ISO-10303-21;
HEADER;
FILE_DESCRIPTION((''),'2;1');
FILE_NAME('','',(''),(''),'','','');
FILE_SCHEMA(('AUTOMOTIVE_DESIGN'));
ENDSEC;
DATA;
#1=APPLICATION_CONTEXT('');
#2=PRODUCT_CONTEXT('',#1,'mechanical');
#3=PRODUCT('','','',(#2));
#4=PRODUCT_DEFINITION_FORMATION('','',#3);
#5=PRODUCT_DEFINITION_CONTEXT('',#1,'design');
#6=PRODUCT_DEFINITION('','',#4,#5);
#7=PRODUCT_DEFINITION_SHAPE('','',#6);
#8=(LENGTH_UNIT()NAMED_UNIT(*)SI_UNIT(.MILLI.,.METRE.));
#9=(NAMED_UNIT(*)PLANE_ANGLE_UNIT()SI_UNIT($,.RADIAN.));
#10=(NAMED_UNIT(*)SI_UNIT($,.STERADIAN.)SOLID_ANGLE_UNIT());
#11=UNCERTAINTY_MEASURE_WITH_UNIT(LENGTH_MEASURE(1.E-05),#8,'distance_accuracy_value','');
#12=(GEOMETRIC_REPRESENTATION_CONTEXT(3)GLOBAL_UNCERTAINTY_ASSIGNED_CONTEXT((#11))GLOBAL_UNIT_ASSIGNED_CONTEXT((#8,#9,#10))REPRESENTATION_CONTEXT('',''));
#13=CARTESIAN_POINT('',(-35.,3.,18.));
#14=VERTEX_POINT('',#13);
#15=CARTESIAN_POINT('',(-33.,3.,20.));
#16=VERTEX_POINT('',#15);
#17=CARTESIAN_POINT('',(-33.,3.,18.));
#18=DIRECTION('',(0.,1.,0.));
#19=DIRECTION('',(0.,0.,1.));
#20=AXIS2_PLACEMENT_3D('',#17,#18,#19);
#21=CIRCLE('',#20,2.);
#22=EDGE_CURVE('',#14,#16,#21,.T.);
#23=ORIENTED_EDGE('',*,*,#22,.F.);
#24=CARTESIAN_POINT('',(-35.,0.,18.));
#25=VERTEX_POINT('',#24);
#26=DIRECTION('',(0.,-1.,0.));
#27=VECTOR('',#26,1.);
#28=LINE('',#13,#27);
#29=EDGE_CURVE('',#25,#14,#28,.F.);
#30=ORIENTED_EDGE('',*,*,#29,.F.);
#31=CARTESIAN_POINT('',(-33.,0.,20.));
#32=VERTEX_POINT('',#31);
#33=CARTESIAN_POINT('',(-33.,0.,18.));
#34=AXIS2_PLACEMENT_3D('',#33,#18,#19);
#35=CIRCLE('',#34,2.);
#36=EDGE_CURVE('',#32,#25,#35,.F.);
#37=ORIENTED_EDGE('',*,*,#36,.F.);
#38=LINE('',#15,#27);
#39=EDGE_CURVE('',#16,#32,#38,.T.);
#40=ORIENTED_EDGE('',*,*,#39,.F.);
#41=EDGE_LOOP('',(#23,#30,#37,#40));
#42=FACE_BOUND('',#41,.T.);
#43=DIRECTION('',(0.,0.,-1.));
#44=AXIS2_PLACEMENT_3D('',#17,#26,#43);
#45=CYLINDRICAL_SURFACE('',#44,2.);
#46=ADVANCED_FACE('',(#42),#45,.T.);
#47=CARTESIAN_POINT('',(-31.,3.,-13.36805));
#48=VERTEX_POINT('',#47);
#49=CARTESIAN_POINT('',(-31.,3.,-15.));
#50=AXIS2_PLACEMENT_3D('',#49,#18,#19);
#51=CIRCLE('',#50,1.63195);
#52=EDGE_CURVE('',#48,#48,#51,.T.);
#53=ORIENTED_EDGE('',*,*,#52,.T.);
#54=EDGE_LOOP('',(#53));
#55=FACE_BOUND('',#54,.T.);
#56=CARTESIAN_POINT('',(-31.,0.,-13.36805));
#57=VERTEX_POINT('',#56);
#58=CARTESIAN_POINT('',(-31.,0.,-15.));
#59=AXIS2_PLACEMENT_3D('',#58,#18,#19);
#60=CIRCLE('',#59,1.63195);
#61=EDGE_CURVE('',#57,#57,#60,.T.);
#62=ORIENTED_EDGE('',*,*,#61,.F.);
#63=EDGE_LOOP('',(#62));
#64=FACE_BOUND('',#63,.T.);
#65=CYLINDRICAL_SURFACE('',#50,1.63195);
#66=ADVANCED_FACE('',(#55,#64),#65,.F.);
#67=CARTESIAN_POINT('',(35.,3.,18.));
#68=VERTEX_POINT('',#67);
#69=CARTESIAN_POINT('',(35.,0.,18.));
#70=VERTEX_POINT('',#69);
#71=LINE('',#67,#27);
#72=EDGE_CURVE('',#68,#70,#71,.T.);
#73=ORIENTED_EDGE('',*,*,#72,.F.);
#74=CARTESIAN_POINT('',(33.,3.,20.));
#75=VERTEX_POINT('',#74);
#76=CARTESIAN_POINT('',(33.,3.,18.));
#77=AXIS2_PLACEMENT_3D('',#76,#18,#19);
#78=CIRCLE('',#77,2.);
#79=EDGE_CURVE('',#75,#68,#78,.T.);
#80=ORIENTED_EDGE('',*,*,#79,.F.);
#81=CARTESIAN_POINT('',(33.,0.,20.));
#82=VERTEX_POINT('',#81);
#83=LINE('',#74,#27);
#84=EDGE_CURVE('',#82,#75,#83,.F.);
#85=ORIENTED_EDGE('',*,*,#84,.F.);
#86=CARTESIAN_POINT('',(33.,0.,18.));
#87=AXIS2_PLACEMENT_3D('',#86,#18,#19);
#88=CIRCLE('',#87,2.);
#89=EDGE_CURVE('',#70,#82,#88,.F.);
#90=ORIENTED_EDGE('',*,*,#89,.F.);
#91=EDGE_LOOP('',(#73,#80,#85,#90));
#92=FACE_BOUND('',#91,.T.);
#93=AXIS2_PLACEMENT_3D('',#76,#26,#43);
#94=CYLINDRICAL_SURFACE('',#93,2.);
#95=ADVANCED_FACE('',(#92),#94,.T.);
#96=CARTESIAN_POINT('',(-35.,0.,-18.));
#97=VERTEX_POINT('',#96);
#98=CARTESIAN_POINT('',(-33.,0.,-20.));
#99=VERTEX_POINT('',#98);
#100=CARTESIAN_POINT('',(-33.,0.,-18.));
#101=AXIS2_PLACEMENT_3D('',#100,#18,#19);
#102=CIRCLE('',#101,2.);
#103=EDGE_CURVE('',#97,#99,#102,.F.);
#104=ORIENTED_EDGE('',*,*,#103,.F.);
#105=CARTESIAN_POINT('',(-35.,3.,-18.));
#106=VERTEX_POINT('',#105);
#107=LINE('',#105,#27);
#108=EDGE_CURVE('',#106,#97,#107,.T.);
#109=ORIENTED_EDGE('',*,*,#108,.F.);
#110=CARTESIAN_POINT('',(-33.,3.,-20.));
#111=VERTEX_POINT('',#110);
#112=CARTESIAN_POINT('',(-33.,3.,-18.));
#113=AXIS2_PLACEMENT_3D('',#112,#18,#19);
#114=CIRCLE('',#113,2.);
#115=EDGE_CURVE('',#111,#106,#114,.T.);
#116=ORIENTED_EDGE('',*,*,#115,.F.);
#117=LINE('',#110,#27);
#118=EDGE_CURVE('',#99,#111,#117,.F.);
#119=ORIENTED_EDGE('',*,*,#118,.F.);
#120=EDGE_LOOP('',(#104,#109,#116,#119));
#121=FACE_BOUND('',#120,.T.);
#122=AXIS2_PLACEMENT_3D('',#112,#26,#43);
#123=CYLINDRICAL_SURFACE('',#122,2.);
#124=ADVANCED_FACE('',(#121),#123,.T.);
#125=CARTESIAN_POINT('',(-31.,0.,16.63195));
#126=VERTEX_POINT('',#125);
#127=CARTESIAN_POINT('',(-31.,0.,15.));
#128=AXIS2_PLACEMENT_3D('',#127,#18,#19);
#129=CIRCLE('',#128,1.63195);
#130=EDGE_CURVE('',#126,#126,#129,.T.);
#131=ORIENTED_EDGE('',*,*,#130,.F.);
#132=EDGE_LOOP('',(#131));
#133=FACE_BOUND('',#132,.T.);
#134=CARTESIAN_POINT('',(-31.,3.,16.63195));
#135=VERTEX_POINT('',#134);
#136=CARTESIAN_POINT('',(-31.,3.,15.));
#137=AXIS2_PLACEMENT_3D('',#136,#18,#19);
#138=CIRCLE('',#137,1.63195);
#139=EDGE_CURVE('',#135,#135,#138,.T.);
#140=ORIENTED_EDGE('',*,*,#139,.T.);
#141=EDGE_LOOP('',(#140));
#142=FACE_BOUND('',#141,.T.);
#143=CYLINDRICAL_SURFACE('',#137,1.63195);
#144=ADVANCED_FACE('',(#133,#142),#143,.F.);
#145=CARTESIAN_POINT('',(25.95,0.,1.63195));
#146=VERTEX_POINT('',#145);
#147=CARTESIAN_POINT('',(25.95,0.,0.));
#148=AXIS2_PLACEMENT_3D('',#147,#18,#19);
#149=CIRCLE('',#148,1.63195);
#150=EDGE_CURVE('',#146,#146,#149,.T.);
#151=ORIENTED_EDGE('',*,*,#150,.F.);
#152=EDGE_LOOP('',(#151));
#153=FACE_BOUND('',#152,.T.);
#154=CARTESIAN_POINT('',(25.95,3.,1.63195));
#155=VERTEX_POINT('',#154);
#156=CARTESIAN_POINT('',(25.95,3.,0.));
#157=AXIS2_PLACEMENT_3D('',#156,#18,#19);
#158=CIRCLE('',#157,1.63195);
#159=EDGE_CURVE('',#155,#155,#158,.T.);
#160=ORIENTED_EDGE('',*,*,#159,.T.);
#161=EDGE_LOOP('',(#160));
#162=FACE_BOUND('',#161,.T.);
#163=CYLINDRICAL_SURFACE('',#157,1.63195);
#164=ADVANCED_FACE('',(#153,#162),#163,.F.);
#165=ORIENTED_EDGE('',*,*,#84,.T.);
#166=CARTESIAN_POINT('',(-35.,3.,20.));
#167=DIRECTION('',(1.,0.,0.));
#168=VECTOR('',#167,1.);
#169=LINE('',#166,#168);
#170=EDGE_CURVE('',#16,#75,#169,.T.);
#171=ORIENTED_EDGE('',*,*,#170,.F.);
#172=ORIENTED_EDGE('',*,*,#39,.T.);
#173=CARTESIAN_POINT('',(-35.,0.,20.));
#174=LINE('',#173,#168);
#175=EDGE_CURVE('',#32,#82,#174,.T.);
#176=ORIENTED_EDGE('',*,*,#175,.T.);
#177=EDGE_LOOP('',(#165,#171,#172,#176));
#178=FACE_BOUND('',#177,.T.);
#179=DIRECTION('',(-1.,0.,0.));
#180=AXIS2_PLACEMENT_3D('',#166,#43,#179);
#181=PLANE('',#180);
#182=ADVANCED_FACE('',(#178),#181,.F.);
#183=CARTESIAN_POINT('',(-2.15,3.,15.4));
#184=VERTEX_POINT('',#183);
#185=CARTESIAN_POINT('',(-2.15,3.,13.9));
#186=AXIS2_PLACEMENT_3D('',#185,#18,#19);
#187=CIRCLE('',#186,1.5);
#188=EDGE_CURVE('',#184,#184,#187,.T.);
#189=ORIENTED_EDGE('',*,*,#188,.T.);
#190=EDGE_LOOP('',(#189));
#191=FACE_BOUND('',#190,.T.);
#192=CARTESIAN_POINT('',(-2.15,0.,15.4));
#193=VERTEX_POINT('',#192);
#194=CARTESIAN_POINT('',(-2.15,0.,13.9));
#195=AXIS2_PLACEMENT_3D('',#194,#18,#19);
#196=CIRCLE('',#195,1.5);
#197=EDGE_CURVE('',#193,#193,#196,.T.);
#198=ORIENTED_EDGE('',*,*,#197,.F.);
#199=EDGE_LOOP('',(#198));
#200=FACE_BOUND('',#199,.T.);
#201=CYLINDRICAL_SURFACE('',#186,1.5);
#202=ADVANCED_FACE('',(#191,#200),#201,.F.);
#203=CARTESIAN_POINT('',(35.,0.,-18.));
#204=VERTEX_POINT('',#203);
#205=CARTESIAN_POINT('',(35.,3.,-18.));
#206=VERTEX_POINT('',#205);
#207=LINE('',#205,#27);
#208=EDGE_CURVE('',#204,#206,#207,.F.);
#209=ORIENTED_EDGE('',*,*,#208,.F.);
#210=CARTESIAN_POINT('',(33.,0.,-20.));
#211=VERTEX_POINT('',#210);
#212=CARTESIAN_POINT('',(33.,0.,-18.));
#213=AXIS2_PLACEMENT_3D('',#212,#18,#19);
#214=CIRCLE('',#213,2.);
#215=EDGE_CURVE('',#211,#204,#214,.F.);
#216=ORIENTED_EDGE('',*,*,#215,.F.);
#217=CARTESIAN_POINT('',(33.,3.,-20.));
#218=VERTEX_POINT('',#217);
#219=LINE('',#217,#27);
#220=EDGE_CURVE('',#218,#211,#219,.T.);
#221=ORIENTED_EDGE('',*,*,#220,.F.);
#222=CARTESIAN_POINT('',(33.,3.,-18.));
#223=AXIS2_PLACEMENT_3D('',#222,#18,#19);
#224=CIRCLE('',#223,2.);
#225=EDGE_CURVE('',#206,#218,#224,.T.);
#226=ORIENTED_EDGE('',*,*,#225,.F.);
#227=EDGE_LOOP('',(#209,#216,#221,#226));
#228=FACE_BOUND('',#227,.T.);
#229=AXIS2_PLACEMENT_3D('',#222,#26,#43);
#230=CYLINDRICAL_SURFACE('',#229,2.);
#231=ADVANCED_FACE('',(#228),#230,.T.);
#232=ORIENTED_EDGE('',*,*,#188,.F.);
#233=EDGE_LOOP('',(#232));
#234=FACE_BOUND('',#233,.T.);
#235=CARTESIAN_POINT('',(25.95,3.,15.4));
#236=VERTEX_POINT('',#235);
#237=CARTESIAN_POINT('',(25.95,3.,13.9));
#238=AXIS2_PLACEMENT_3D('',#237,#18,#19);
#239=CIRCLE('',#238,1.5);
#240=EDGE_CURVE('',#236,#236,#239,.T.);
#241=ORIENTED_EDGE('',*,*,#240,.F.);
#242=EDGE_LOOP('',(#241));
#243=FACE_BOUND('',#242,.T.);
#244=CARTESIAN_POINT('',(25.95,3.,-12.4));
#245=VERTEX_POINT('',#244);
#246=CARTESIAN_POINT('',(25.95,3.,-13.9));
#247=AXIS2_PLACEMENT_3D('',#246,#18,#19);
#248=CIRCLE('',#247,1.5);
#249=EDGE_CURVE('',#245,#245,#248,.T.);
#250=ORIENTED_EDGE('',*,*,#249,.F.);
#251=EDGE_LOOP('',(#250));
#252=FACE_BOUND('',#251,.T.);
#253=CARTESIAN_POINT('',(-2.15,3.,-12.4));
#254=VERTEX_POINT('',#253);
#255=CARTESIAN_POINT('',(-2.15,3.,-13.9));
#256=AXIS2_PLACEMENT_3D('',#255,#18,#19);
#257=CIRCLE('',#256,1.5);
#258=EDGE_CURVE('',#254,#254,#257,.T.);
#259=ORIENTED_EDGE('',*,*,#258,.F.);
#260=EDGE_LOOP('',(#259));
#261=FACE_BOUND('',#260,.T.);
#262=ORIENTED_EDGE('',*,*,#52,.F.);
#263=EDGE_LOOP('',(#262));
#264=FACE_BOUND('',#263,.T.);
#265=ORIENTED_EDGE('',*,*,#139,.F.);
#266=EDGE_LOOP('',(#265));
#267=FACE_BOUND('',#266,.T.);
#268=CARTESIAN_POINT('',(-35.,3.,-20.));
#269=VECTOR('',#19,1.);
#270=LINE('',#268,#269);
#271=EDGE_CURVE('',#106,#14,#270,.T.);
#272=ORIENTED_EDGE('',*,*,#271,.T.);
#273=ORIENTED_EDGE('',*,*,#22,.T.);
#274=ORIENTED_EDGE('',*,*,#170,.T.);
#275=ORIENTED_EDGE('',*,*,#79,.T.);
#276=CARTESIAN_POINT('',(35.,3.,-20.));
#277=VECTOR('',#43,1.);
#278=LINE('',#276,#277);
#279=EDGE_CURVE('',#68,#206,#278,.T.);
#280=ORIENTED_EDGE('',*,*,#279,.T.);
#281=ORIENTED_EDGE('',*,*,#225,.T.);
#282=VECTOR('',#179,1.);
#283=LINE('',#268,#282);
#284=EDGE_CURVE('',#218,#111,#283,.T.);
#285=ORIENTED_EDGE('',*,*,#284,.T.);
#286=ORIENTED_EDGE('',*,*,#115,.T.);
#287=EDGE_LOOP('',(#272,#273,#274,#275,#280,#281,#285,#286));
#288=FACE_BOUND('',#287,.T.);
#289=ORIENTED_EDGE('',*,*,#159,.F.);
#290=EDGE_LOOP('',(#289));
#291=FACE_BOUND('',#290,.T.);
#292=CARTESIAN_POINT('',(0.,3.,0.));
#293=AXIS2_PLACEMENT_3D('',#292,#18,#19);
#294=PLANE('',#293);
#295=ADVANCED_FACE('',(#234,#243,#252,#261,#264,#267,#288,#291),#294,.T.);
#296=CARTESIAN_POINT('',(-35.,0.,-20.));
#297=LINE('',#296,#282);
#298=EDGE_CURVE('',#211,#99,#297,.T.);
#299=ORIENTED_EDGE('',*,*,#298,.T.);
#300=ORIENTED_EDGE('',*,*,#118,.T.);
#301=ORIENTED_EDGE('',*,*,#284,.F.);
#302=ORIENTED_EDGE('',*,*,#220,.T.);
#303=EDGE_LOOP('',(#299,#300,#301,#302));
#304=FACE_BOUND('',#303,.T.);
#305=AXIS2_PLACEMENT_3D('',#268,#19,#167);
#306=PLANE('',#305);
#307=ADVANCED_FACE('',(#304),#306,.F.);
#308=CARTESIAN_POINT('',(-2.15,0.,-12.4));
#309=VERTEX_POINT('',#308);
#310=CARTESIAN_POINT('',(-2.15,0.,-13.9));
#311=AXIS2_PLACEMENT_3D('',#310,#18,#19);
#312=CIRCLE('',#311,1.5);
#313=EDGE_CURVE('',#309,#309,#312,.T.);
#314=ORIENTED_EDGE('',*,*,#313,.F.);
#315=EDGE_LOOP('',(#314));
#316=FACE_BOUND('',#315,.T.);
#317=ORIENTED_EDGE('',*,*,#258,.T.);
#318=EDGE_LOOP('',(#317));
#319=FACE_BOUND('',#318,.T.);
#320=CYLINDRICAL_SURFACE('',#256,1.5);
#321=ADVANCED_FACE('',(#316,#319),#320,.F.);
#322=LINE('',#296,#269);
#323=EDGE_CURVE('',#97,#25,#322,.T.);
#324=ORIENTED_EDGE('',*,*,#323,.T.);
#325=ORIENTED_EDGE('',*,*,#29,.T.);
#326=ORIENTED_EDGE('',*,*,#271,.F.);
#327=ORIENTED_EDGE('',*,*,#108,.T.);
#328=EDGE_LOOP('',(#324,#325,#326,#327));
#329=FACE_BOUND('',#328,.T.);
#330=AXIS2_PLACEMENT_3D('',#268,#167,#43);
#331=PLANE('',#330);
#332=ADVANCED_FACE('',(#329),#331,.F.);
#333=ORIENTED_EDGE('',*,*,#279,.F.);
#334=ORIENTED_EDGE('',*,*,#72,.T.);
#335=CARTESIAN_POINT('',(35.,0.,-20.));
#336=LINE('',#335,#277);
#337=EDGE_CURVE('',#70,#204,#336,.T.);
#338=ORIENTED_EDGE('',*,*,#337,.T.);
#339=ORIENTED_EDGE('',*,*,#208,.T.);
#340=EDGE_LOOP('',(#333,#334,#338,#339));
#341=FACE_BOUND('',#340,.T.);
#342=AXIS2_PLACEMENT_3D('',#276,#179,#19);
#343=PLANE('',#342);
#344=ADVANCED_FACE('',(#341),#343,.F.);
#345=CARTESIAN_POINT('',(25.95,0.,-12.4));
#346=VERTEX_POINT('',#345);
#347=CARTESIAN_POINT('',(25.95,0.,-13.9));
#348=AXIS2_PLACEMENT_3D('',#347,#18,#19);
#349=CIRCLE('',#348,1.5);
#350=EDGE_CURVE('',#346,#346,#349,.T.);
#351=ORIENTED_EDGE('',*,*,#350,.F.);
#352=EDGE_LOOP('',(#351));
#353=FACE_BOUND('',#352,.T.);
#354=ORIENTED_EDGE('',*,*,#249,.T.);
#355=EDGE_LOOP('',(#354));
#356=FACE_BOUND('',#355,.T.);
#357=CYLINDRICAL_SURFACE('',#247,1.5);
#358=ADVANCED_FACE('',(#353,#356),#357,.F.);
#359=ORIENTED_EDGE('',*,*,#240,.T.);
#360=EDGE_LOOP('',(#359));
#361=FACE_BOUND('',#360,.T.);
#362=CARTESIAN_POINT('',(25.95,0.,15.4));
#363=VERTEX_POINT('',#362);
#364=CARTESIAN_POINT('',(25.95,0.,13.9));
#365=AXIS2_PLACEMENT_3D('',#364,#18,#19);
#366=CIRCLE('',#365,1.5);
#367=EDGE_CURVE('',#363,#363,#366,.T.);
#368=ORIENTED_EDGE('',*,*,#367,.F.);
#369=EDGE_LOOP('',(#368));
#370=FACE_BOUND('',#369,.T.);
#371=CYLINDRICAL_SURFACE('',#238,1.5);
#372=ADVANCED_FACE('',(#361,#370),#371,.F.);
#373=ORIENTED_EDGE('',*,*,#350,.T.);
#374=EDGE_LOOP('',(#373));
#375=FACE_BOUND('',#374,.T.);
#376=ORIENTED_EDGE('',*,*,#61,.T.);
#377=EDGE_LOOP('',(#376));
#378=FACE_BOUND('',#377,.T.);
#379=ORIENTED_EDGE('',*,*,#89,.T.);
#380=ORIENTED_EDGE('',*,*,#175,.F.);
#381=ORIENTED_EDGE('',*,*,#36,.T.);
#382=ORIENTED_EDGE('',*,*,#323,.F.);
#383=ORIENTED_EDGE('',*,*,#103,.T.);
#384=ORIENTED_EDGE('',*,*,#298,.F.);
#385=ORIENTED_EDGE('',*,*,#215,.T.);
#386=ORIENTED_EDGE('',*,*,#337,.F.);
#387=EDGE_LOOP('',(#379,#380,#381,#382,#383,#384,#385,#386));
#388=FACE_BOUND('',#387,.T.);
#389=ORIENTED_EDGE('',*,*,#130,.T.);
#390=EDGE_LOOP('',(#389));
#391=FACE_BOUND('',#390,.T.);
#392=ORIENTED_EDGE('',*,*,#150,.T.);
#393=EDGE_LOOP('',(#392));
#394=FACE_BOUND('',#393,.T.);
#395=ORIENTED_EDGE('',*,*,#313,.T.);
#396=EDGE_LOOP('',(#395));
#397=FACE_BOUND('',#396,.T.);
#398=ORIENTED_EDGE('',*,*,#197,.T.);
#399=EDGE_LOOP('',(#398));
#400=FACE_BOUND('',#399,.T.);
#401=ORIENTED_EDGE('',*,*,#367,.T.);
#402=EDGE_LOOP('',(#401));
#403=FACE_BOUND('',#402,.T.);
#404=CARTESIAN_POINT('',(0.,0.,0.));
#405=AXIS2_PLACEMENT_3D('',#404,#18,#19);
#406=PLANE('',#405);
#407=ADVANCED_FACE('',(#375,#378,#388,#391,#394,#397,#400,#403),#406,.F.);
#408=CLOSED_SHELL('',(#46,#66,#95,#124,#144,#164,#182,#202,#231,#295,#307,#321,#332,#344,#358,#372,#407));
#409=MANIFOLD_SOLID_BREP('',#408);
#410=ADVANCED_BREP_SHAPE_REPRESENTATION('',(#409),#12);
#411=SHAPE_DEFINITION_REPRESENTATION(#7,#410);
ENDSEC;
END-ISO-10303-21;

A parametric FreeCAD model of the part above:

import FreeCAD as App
import Part
import Sketcher

V = App.Vector


def edges_at(feature, points):
    """Names of the edges that pass closest to the given points."""
    edges = feature.Shape.Edges
    near = lambda p: min(range(len(edges)), key=lambda i: edges[i].distToShape(Part.Vertex(*p))[0])
    return sorted({f"Edge{near(p) + 1}" for p in points})


def add_polygon(sketch, points):
    """Adds a closed chain of lines whose ends are joined by coincident constraints."""
    first, n = sketch.GeometryCount, len(points)
    for a, b in zip(points, points[1:] + points[:1]):
        sketch.addGeometry(Part.LineSegment(App.Vector(*a, 0), App.Vector(*b, 0)), False)
    for i in range(n):
        sketch.addConstraint(Sketcher.Constraint("Coincident", first + i, 2, first + (i + 1) % n, 1))

doc = App.newDocument("Part")
params = doc.addObject("Spreadsheet::Sheet", "Params")
for row, (alias, value) in enumerate([
    ("sketch1_width", "70 mm"),
    ("sketch1_height", "40 mm"),
    ("pad1_length", "3 mm"),
    ("sketch2_diameter", "3 mm"),
    ("hole_diameter", "3 mm"),
    ("hole2_diameter", "3.2639 mm"),
    ("fillet_radius", "2 mm"),
], start=1):
    params.set(f"A{row}", alias)
    params.set(f"B{row}", "=" + value)
    params.setAlias(f"B{row}", alias)

body = doc.addObject("PartDesign::Body", "Body")

# Sketch on XZ plane
sketch1 = doc.addObject("Sketcher::SketchObject", "Sketch")
body.addObject(sketch1)
sketch1.AttachmentSupport = (doc.XZ_Plane, [""])
sketch1.MapMode = "FlatFace"
add_polygon(sketch1, [(-35, -20), (-35, 20), (35, 20), (35, -20)])  # lines 0-3
sketch1.addConstraint(Sketcher.Constraint("Vertical", 0))
sketch1.addConstraint(Sketcher.Constraint("Horizontal", 1))
sketch1.addConstraint(Sketcher.Constraint("Vertical", 2))
sketch1.addConstraint(Sketcher.Constraint("Horizontal", 3))
sketch1.addConstraint(Sketcher.Constraint("Symmetric", 0, 2, 2, 2, -1, 1))
sketch1.addConstraint(Sketcher.Constraint("DistanceX", 1, 1, 1, 2, 70.0))
sketch1.addConstraint(Sketcher.Constraint("DistanceY", 0, 1, 0, 2, 40.0))
sketch1.setExpression("Constraints[9]", "Params.sketch1_width")
sketch1.setExpression("Constraints[10]", "Params.sketch1_height")
pad1 = doc.addObject("PartDesign::Pad", "Pad")
body.addObject(pad1)
pad1.Profile = sketch1
pad1.setExpression("Length", "Params.pad1_length")
pad1.Reversed = True

# Sketch on XZ plane
sketch2 = doc.addObject("Sketcher::SketchObject", "Sketch001")
body.addObject(sketch2)
sketch2.AttachmentSupport = (doc.XZ_Plane, [""])
sketch2.MapMode = "FlatFace"
sketch2.AttachmentOffset = App.Placement(V(0, 0, -3), App.Rotation())
sketch2.addGeometry(Part.Circle(V(-2.15, -13.9, 0), V(0, 0, 1), 1.5), False)
sketch2.addGeometry(Part.Circle(V(25.95, -13.9, 0), V(0, 0, 1), 1.5), False)
sketch2.addGeometry(Part.Circle(V(-2.15, 13.9, 0), V(0, 0, 1), 1.5), False)
sketch2.addGeometry(Part.Circle(V(25.95, 13.9, 0), V(0, 0, 1), 1.5), False)
sketch2.addConstraint(Sketcher.Constraint("Equal", 0, 1))
sketch2.addConstraint(Sketcher.Constraint("Equal", 1, 2))
sketch2.addConstraint(Sketcher.Constraint("Equal", 2, 3))
sketch2.addConstraint(Sketcher.Constraint("Symmetric", 0, 3, 2, 3, -1))
sketch2.addConstraint(Sketcher.Constraint("Symmetric", 1, 3, 3, 3, -1))
sketch2.addConstraint(Sketcher.Constraint("Horizontal", 0, 3, 1, 3))
sketch2.addConstraint(Sketcher.Constraint("Diameter", 0, 3.0))
sketch2.addConstraint(Sketcher.Constraint("DistanceY", 0, 3, -1, 1, 13.9))
sketch2.addConstraint(Sketcher.Constraint("DistanceX", 0, 3, 1, 3, 28.1))
sketch2.addConstraint(Sketcher.Constraint("DistanceX", 0, 3, -1, 1, 2.15))
sketch2.setExpression("Constraints[6]", "Params.sketch2_diameter")
doc.recompute()
hole = doc.addObject("PartDesign::Hole", "Hole")
body.addObject(hole)
hole.Profile = sketch2
hole.ThreadType = "None"
hole.setExpression("Diameter", "Params.hole_diameter")
hole.DepthType = "ThroughAll"
hole.Reversed = True

# Sketch on XZ plane
sketch3 = doc.addObject("Sketcher::SketchObject", "Sketch002")
body.addObject(sketch3)
sketch3.AttachmentSupport = (doc.XZ_Plane, [""])
sketch3.MapMode = "FlatFace"
sketch3.AttachmentOffset = App.Placement(V(0, 0, -3), App.Rotation())
sketch3.addGeometry(Part.Circle(V(-31, -15, 0), V(0, 0, 1), 1.63195), False)
sketch3.addGeometry(Part.Circle(V(-31, 15, 0), V(0, 0, 1), 1.63195), False)
sketch3.addGeometry(Part.Circle(V(25.95, 0, 0), V(0, 0, 1), 1.63195), False)
sketch3.addConstraint(Sketcher.Constraint("Equal", 0, 1))
sketch3.addConstraint(Sketcher.Constraint("Equal", 1, 2))
sketch3.addConstraint(Sketcher.Constraint("Symmetric", 0, 3, 1, 3, -1))
sketch3.addConstraint(Sketcher.Constraint("PointOnObject", 2, 3, -1))
sketch3.addConstraint(Sketcher.Constraint("DistanceX", 0, 3, -1, 1, 31.0))
sketch3.addConstraint(Sketcher.Constraint("DistanceY", 0, 3, -1, 1, 15.0))
sketch3.addConstraint(Sketcher.Constraint("Diameter", 0, 3.2639))
sketch3.addConstraint(Sketcher.Constraint("DistanceX", -1, 1, 2, 3, 25.95))
doc.recompute()
hole2 = doc.addObject("PartDesign::Hole", "Hole001")
body.addObject(hole2)
hole2.Profile = sketch3
hole2.ThreadType = "None"
hole2.setExpression("Diameter", "Params.hole2_diameter")
hole2.DepthType = "ThroughAll"
hole2.Reversed = True
doc.recompute()

fillet = doc.addObject("PartDesign::Fillet", "Fillet")
body.addObject(fillet)
fillet.Base = (hole2, edges_at(hole2, [
    (35, 1.5, 20),
    (-35, 1.5, 20),
    (-35, 1.5, -20),
    (35, 1.5, -20),
]))
fillet.setExpression("Radius", "Params.fillet_radius")

doc.recompute()
